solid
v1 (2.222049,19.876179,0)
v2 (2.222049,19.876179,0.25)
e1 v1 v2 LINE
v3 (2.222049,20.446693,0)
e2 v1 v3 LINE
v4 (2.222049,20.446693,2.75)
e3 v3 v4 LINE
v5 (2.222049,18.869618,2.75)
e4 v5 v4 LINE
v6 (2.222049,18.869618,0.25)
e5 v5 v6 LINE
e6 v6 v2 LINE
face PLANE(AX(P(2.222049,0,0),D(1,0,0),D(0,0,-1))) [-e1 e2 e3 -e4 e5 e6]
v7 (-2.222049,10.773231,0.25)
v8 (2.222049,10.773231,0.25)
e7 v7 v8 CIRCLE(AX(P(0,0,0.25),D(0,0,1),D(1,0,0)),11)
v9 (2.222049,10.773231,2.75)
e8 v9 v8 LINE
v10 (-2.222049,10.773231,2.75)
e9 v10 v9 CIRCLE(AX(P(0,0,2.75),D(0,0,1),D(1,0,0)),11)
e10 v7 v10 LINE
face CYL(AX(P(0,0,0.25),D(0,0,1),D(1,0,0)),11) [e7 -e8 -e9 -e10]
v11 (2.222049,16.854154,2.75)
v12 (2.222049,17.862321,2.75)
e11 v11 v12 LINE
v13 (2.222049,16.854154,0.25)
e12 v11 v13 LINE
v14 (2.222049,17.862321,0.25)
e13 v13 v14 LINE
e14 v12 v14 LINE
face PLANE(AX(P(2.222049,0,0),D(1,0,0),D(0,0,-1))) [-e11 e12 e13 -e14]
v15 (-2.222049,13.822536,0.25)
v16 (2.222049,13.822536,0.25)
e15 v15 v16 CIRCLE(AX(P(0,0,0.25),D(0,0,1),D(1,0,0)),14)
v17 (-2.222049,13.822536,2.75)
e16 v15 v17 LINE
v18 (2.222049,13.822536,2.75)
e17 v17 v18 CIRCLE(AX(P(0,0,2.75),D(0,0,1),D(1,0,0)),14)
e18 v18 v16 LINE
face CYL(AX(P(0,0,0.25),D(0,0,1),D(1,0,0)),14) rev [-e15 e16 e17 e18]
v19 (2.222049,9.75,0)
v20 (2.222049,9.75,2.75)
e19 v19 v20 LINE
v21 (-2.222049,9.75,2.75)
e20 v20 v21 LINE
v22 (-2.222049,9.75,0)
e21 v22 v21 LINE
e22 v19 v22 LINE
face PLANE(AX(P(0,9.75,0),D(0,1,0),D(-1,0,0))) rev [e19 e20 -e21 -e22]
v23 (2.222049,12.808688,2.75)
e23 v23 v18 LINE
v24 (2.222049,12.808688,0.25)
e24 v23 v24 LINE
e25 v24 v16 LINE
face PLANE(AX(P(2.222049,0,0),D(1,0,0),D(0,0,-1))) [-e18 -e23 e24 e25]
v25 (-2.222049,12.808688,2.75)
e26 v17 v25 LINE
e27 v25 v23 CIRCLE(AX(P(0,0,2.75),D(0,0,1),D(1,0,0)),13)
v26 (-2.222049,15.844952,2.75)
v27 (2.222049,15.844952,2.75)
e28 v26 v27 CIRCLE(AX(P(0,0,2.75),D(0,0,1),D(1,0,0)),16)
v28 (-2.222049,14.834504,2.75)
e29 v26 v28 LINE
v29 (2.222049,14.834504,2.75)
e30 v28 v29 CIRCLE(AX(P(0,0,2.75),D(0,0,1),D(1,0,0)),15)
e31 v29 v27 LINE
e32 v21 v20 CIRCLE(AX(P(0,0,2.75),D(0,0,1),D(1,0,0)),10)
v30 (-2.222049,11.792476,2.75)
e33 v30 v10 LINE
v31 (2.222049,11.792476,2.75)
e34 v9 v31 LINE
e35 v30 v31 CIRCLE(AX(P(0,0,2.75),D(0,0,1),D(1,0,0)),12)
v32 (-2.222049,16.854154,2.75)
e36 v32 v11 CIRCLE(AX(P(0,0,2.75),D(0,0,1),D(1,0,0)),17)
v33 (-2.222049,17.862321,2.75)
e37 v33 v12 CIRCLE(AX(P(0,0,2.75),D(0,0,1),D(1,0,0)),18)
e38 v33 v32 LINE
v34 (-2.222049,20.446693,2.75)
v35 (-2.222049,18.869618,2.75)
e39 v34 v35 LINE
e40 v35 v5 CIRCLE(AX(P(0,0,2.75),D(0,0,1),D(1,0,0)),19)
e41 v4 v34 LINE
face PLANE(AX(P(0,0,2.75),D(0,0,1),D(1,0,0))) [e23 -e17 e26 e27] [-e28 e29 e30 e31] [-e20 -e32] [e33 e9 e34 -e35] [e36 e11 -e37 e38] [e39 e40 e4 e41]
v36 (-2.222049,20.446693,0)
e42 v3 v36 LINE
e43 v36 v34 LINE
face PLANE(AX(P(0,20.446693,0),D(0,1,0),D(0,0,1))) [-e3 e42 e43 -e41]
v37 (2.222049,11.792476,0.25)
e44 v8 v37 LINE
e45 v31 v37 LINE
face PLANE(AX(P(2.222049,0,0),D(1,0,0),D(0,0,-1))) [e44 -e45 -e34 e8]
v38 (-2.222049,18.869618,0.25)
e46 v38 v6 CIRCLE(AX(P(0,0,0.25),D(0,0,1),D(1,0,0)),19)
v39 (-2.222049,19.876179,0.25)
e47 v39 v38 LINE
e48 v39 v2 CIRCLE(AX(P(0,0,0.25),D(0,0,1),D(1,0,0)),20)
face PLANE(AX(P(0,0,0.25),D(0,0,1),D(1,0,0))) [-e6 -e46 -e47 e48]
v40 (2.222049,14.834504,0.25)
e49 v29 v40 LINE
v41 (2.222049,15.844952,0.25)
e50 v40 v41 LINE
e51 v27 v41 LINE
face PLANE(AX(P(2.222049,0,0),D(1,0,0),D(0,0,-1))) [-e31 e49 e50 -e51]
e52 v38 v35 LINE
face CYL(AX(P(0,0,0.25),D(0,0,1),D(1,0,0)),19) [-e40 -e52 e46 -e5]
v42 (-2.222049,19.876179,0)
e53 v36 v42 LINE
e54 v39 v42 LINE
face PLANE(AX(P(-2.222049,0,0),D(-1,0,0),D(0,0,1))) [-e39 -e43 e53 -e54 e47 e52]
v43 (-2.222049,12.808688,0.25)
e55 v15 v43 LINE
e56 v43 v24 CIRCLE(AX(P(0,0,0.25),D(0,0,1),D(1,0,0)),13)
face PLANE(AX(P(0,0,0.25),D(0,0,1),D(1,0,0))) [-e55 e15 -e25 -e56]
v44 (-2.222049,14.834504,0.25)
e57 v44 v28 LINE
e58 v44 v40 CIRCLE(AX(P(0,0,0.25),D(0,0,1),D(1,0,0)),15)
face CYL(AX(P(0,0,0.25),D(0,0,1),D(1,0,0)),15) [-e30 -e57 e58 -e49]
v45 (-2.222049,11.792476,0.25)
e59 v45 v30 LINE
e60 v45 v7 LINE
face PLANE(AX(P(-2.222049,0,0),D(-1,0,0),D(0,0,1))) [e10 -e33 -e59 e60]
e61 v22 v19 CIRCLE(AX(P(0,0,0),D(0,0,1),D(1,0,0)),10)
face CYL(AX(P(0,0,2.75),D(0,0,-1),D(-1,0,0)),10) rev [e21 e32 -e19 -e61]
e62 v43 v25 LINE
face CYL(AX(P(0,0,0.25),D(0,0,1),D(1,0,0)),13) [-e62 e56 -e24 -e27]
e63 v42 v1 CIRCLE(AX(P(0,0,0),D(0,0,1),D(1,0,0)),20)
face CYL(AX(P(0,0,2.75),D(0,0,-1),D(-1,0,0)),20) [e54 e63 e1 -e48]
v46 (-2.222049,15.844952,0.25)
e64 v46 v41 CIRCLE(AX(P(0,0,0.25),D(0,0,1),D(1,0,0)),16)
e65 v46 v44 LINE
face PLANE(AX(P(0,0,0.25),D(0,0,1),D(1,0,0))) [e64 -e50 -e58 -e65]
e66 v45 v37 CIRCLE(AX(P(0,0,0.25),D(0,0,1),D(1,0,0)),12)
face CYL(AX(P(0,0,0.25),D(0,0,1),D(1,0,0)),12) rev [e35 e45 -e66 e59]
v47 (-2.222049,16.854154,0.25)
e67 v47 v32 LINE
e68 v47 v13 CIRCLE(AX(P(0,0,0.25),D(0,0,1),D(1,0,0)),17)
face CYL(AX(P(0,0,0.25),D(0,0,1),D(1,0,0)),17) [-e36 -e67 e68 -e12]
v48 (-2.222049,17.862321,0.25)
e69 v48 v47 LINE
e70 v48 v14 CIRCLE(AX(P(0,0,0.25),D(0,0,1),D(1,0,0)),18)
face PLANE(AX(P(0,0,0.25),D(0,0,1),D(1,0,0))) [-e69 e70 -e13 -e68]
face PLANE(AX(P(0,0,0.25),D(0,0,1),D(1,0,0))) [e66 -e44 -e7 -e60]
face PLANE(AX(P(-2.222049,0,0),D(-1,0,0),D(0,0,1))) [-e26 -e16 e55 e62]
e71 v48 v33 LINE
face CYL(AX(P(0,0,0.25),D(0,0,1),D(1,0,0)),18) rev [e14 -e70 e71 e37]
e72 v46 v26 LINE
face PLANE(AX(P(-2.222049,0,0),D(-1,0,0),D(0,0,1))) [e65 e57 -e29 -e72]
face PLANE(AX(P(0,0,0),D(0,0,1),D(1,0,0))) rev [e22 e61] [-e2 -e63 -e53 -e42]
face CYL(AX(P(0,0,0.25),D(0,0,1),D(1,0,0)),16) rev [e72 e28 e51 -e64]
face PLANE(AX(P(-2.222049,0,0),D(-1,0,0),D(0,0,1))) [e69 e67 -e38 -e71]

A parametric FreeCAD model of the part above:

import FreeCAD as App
import Part
import Sketcher
from FreeCAD import Vector
Q = App.Units.Quantity

doc = App.newDocument("Part")
body = doc.addObject("PartDesign::Body", "Body")

# Sketch on XY plane
sketch1 = body.newObject("Sketcher::SketchObject", "Sketch")
sketch1.AttachmentSupport = (doc.getObject("XY_Plane"), [""])
sketch1.MapMode = "FlatFace"
sketch1.addGeometry([
    Part.Circle(Vector(0, 0, 0), Vector(0, 0, 1), 20),
    Part.Circle(Vector(0, 0, 0), Vector(0, 0, 1), 10),
], False)
sketch1.addConstraint([
    Sketcher.Constraint("Coincident", 0, 3, -1, 1),
    Sketcher.Constraint("Coincident", 1, 3, -1, 1),
    Sketcher.Constraint("Diameter", 0, Q("40 mm")),
    Sketcher.Constraint("Diameter", 1, Q("20 mm")),
])
pad1 = body.newObject("PartDesign::Pad", "Pad")
pad1.Profile = sketch1
pad1.Length = 2.75

# Sketch on XY plane
sketch2 = body.newObject("Sketcher::SketchObject", "Sketch001")
sketch2.AttachmentSupport = (doc.getObject("XY_Plane"), [""])
sketch2.MapMode = "FlatFace"
sketch2.AttachmentOffset = App.Placement(Vector(0, 0, 0.25), App.Rotation())
sketch2.addGeometry([
    Part.Circle(Vector(0, 0, 0), Vector(0, 0, 1), 20),  # 0
    Part.Circle(Vector(0, 0, 0), Vector(0, 0, 1), 19),  # 1
    Part.Circle(Vector(0, 0, 0), Vector(0, 0, 1), 18),  # 2
    Part.Circle(Vector(0, 0, 0), Vector(0, 0, 1), 17),  # 3
    Part.Circle(Vector(0, 0, 0), Vector(0, 0, 1), 16),  # 4
    Part.Circle(Vector(0, 0, 0), Vector(0, 0, 1), 15),  # 5
    Part.Circle(Vector(0, 0, 0), Vector(0, 0, 1), 14),  # 6
    Part.Circle(Vector(0, 0, 0), Vector(0, 0, 1), 13),  # 7
    Part.Circle(Vector(0, 0, 0), Vector(0, 0, 1), 12),  # 8
    Part.Circle(Vector(0, 0, 0), Vector(0, 0, 1), 11),  # 9
], False)
sketch2.addConstraint([
    Sketcher.Constraint("Coincident", 0, 3, -1, 1),
    Sketcher.Constraint("Coincident", 1, 3, -1, 1),
    Sketcher.Constraint("Coincident", 2, 3, -1, 1),
    Sketcher.Constraint("Coincident", 3, 3, -1, 1),
    Sketcher.Constraint("Coincident", 4, 3, -1, 1),
    Sketcher.Constraint("Coincident", 5, 3, -1, 1),
    Sketcher.Constraint("Coincident", 6, 3, -1, 1),
    Sketcher.Constraint("Coincident", 7, 3, -1, 1),
    Sketcher.Constraint("Coincident", 8, 3, -1, 1),
    Sketcher.Constraint("Coincident", 9, 3, -1, 1),
    Sketcher.Constraint("Diameter", 0, Q("40 mm")),
    Sketcher.Constraint("Diameter", 1, Q("38 mm")),
    Sketcher.Constraint("Diameter", 2, Q("36 mm")),
    Sketcher.Constraint("Diameter", 3, Q("34 mm")),
    Sketcher.Constraint("Diameter", 4, Q("32 mm")),
    Sketcher.Constraint("Diameter", 5, Q("30 mm")),
    Sketcher.Constraint("Diameter", 6, Q("28 mm")),
    Sketcher.Constraint("Diameter", 7, Q("26 mm")),
    Sketcher.Constraint("Diameter", 8, Q("24 mm")),
    Sketcher.Constraint("Diameter", 9, Q("22 mm")),
])
pocket1 = body.newObject("PartDesign::Pocket", "Pocket")
pocket1.Profile = sketch2
pocket1.Length = 2.5
pocket1.Reversed = True

# Sketch on XY plane
sketch3 = body.newObject("Sketcher::SketchObject", "Sketch002")
sketch3.AttachmentSupport = (doc.getObject("XY_Plane"), [""])
sketch3.MapMode = "FlatFace"
sketch3.AttachmentOffset = App.Placement(Vector(0, 0, 2.75), App.Rotation())
sketch3.addGeometry([
    Part.LineSegment(Vector(-2.2, 9.8, 0), Vector(2.2, 9.8, 0)),
    Part.LineSegment(Vector(2.2, 9.8, 0), Vector(2.2, 20.4, 0)),
    Part.LineSegment(Vector(2.2, 20.4, 0), Vector(-2.2, 20.4, 0)),
    Part.LineSegment(Vector(-2.2, 20.4, 0), Vector(-2.2, 9.8, 0)),
], False)
sketch3.addConstraint([
    Sketcher.Constraint("Coincident", 0, 2, 1, 1),
    Sketcher.Constraint("Coincident", 1, 2, 2, 1),
    Sketcher.Constraint("Coincident", 2, 2, 3, 1),
    Sketcher.Constraint("Coincident", 3, 2, 0, 1),
    Sketcher.Constraint("Horizontal", 0),
    Sketcher.Constraint("Vertical", 1),
    Sketcher.Constraint("Horizontal", 2),
    Sketcher.Constraint("Vertical", 3),
    Sketcher.Constraint("DistanceY", -1, 1, 0, 2, Q("9.75 mm")),
    Sketcher.Constraint("DistanceX", 0, 1, 0, 2, Q("4.444097 mm")),
    Sketcher.Constraint("DistanceY", 1, 1, 1, 2, Q("10.696693 mm")),
    Sketcher.Constraint("DistanceX", -1, 1, 0, 2, Q("2.222049 mm")),
])
pad2 = body.newObject("PartDesign::Pad", "Pad001")
pad2.Profile = sketch3
pad2.Length = 2.75
pad2.Reversed = True

doc.recompute()
